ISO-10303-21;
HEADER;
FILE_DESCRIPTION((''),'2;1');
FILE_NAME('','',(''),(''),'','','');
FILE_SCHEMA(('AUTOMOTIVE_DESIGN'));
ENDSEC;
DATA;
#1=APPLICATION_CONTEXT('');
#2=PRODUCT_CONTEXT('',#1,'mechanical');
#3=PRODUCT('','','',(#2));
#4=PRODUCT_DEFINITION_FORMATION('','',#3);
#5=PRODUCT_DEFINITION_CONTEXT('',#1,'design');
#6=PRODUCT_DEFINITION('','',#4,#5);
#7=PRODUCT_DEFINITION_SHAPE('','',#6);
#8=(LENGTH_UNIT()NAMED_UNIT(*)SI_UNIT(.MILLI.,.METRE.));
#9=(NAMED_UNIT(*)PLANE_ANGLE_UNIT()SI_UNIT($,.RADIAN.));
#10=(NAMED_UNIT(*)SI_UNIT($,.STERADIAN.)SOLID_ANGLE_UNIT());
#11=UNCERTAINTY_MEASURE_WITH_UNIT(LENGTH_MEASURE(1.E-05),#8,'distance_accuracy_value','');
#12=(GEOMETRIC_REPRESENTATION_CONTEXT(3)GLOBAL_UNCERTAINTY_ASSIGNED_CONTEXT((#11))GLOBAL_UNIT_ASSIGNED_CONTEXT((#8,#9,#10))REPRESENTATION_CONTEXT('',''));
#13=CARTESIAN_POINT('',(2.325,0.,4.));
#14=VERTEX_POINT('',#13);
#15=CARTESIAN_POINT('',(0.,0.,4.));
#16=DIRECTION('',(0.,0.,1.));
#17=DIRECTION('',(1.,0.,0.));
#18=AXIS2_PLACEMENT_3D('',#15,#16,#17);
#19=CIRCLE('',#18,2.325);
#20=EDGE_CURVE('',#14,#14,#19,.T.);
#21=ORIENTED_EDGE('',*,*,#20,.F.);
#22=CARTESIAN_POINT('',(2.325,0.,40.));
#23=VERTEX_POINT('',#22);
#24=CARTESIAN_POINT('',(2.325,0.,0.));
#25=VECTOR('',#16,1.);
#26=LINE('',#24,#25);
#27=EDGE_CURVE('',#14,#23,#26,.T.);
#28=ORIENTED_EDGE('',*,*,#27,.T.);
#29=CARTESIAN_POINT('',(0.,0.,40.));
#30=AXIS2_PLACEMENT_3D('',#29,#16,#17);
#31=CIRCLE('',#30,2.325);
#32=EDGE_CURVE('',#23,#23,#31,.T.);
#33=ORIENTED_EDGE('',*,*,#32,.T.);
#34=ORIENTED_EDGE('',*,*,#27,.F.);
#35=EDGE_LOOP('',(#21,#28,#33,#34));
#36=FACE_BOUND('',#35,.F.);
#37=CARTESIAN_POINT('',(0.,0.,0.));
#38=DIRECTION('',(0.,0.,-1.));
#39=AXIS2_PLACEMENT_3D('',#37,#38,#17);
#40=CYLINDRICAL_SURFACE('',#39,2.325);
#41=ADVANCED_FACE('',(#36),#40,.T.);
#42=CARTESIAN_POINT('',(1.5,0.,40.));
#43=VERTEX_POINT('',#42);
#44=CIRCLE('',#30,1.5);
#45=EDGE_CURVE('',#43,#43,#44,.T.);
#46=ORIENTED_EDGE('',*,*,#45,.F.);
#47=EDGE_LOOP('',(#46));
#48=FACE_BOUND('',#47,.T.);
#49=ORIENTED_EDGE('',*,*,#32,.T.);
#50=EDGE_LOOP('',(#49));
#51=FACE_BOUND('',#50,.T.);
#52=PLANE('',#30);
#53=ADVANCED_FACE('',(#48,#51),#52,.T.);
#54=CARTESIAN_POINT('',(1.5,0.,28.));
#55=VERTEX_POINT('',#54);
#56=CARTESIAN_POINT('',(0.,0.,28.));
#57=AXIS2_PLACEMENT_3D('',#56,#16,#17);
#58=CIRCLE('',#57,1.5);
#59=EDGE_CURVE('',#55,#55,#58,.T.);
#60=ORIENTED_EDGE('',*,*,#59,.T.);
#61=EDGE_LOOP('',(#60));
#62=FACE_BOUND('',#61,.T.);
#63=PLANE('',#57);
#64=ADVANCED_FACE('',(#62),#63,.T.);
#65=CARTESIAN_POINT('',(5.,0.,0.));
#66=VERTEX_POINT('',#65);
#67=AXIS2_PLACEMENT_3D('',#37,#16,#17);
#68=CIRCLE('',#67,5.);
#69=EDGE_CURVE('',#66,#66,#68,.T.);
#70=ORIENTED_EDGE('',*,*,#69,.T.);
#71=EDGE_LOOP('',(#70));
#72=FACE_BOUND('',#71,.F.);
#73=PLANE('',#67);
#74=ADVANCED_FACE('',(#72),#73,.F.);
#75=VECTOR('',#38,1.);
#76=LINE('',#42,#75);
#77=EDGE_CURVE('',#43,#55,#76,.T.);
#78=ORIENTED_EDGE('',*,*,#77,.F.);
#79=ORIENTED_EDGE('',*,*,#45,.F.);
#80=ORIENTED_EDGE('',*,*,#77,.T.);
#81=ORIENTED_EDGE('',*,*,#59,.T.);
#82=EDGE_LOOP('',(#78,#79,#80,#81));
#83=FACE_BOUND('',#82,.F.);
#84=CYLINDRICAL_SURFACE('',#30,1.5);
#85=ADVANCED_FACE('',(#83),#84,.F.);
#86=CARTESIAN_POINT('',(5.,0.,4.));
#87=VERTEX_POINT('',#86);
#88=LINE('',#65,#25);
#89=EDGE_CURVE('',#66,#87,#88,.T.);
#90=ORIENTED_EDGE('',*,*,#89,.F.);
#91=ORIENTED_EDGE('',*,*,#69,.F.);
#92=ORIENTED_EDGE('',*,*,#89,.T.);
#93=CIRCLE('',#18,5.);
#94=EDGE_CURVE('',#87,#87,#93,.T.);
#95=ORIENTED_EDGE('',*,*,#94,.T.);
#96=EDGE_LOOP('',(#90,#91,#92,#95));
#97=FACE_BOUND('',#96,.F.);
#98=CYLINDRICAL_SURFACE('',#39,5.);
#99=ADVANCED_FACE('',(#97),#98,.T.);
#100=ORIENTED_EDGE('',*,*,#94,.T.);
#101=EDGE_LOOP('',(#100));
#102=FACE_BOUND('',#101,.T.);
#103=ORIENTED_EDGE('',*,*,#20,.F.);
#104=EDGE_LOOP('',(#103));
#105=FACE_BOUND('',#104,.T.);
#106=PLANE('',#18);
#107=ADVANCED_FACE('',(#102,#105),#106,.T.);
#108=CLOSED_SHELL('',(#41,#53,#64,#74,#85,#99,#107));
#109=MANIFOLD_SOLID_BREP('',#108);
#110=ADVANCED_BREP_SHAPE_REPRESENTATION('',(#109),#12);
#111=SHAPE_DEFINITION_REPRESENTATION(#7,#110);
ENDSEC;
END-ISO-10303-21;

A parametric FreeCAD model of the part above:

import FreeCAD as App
import Part
import Sketcher

V = App.Vector
Q = App.Units.Quantity

doc = App.newDocument("Part")
body = doc.addObject("PartDesign::Body", "Body")

# Sketch on XY plane
sketch1 = body.newObject("Sketcher::SketchObject", "Sketch")
sketch1.AttachmentSupport = (doc.getObject("XY_Plane"), [""])
sketch1.MapMode = "FlatFace"
sketch1.addGeometry(Part.Circle(V(0, 0, 0), V(0, 0, 1), 2.3), False)
sketch1.addConstraint([
    Sketcher.Constraint("Coincident", 0, 3, -1, 1),
    Sketcher.Constraint("Diameter", 0, Q("4.65 mm")),
])
pad1 = body.newObject("PartDesign::Pad", "Pad")
pad1.Profile = sketch1
pad1.Length = 40

# Sketch on XY plane
sketch2 = body.newObject("Sketcher::SketchObject", "Sketch001")
sketch2.AttachmentSupport = (doc.getObject("XY_Plane"), [""])
sketch2.MapMode = "FlatFace"
sketch2.addGeometry([
    Part.Circle(V(0, 0, 0), V(0, 0, 1), 5),
    Part.Circle(V(0, 0, 0), V(0, 0, 1), 2.3),
], False)
sketch2.addConstraint([
    Sketcher.Constraint("Coincident", 0, 3, -1, 1),
    Sketcher.Constraint("Coincident", 1, 3, -1, 1),
    Sketcher.Constraint("Diameter", 0, Q("10 mm")),
    Sketcher.Constraint("Diameter", 1, Q("4.65 mm")),
])
pad2 = body.newObject("PartDesign::Pad", "Pad001")
pad2.Profile = sketch2
pad2.Length = 4

# Sketch on XY plane
sketch3 = body.newObject("Sketcher::SketchObject", "Sketch002")
sketch3.AttachmentSupport = (doc.getObject("XY_Plane"), [""])
sketch3.MapMode = "FlatFace"
sketch3.AttachmentOffset = App.Placement(V(0, 0, 40), App.Rotation())
sketch3.addGeometry(Part.Circle(V(0, 0, 0), V(0, 0, 1), 1.5), False)
sketch3.addConstraint([
    Sketcher.Constraint("Coincident", 0, 3, -1, 1),
    Sketcher.Constraint("Diameter", 0, Q("3 mm")),
])
pocket1 = body.newObject("PartDesign::Pocket", "Pocket")
pocket1.Profile = sketch3
pocket1.Length = 12

doc.recompute()
